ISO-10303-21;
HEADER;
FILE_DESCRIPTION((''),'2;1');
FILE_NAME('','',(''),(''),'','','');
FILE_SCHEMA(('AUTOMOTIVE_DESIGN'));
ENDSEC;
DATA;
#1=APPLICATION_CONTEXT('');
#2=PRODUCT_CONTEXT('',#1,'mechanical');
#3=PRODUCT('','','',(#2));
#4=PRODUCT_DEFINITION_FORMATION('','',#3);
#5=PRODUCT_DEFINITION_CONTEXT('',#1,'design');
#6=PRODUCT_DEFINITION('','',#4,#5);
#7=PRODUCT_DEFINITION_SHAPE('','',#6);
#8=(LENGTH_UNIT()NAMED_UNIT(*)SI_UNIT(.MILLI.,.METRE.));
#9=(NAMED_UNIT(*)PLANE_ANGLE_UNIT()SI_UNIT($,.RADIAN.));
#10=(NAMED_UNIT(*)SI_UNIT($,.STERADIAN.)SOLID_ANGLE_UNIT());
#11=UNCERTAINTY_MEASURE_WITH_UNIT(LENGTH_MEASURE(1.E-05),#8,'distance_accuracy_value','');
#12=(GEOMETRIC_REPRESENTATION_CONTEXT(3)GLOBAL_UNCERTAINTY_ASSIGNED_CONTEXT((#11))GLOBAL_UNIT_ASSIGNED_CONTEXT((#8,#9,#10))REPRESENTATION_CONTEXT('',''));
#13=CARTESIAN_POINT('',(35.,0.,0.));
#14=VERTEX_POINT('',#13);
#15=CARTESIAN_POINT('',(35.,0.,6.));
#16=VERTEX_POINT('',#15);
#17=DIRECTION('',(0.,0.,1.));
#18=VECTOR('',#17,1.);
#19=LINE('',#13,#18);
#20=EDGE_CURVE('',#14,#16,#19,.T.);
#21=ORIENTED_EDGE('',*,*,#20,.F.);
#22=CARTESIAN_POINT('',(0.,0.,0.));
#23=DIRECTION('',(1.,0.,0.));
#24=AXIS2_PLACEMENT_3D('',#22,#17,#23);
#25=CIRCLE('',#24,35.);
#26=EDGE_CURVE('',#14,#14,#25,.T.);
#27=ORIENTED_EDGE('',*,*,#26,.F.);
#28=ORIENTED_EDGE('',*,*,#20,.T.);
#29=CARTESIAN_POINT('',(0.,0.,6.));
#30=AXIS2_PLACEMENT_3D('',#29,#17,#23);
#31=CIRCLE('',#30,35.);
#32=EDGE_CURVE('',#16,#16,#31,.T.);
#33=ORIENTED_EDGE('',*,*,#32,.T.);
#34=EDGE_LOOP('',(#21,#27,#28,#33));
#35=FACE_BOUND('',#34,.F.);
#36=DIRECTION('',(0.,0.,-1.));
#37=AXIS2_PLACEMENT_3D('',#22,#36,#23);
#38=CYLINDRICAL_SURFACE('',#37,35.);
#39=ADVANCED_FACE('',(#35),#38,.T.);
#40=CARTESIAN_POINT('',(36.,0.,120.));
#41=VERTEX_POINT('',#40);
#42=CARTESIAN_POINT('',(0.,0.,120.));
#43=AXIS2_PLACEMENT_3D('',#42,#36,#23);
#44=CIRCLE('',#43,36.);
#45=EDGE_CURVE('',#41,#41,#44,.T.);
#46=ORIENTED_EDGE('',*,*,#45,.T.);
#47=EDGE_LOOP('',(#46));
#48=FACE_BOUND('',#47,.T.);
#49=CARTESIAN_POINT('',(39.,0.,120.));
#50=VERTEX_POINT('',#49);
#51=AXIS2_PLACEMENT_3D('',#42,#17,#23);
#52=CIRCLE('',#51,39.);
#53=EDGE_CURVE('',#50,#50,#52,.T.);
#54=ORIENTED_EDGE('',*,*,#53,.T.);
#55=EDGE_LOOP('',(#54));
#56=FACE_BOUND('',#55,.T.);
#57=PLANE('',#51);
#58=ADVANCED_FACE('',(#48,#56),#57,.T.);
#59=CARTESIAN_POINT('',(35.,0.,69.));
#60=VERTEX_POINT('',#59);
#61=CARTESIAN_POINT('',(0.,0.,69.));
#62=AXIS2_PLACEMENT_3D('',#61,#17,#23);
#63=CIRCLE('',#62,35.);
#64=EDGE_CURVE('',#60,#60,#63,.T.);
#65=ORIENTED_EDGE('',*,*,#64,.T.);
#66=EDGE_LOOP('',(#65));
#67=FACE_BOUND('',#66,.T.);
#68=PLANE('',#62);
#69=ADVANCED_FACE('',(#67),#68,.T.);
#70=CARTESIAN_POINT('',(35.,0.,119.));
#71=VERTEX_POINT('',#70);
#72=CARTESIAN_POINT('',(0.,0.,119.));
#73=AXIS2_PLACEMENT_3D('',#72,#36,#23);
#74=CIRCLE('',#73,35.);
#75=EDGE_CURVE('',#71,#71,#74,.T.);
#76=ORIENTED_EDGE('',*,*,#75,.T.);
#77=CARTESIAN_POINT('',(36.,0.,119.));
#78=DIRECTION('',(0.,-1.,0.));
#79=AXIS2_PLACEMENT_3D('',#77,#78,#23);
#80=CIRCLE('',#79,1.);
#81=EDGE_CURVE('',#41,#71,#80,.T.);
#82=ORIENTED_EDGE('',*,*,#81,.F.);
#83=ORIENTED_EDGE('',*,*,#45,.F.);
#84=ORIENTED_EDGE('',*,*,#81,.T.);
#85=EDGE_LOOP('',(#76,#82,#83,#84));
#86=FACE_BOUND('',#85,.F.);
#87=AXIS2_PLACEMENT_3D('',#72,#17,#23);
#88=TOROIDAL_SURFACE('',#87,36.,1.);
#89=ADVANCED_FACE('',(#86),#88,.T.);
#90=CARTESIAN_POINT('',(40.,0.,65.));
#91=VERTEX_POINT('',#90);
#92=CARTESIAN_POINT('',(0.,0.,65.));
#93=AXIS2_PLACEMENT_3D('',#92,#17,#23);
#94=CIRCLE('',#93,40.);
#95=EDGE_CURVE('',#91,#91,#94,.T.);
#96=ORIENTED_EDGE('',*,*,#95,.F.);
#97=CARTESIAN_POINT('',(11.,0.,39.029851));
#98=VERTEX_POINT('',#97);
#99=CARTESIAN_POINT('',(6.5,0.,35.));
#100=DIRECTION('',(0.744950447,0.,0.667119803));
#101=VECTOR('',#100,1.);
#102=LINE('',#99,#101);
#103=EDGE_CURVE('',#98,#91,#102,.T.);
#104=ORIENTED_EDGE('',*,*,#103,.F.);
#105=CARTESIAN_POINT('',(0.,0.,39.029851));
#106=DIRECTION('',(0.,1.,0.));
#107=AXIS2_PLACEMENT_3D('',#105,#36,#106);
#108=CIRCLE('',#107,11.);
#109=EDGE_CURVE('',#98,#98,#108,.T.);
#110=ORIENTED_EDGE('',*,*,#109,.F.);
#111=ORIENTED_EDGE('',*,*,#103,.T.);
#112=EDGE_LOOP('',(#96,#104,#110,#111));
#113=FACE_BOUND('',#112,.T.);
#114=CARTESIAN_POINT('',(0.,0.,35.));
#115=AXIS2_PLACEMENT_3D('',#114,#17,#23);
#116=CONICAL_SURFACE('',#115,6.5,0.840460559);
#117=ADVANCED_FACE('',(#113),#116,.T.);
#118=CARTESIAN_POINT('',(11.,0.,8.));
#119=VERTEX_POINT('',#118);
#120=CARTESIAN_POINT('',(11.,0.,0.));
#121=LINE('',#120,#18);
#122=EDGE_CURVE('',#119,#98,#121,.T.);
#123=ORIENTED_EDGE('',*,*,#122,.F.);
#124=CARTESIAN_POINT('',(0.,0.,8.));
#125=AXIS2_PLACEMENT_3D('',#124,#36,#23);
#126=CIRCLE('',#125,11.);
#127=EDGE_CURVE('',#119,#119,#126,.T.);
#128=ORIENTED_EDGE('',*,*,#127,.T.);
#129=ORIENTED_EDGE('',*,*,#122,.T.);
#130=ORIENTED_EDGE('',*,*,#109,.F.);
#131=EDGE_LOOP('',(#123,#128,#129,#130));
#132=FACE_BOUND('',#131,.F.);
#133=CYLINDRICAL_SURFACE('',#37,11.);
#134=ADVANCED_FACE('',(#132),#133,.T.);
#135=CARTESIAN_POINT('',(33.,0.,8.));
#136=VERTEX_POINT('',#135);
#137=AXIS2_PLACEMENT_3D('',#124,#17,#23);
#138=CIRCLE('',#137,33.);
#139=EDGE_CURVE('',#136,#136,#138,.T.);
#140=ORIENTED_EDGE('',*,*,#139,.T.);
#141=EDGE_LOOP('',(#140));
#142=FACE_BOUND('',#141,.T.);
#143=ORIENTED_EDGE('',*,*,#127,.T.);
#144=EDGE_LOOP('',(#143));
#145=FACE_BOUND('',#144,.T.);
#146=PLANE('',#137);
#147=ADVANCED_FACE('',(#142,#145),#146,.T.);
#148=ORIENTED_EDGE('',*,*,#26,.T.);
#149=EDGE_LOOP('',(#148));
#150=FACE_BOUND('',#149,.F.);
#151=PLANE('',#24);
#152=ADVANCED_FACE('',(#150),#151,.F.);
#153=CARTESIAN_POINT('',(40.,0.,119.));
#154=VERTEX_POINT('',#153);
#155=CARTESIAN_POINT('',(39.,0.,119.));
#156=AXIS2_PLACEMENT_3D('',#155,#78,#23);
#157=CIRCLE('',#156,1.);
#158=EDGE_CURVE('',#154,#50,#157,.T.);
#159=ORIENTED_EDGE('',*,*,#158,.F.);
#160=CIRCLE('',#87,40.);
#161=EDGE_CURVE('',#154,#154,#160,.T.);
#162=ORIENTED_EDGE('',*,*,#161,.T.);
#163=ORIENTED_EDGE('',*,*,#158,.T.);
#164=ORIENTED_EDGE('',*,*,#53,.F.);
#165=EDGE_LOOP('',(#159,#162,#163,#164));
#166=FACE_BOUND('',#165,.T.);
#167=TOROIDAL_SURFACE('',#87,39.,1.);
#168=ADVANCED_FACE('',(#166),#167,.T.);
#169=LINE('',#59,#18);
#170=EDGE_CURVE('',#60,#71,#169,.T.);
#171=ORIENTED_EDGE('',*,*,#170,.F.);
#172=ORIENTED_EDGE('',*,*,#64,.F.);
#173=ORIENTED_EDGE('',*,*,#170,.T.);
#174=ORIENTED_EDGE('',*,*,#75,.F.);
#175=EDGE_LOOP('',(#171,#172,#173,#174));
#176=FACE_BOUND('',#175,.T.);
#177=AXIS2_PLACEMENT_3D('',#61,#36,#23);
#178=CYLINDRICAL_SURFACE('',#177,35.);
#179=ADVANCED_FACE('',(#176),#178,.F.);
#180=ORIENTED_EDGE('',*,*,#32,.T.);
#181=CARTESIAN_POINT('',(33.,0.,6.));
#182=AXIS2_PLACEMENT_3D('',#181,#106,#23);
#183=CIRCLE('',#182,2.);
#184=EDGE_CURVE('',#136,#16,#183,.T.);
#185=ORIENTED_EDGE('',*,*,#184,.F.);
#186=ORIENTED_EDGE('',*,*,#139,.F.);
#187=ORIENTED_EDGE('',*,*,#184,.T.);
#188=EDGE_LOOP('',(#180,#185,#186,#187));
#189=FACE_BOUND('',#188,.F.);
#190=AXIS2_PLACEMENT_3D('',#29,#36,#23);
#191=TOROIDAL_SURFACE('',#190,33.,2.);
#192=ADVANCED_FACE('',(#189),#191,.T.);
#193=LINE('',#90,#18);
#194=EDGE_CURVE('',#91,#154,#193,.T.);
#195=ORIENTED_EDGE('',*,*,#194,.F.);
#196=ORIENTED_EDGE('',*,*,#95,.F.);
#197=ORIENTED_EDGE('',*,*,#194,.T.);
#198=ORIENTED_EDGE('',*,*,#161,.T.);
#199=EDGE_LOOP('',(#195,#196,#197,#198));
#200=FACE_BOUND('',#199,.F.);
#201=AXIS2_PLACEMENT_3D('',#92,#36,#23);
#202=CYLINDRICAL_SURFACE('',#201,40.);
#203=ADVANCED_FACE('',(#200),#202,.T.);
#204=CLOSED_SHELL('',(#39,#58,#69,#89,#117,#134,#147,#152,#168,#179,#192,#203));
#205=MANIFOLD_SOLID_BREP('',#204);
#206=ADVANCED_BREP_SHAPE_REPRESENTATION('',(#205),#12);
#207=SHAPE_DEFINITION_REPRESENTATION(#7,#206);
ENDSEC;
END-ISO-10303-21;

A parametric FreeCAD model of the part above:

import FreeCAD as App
import Part
import Sketcher

V = App.Vector
Q = App.Units.Quantity


def edges_at(feature, points):
    """Names of the edges that pass closest to the given points."""
    edges = feature.Shape.Edges
    near = lambda p: min(range(len(edges)), key=lambda i: edges[i].distToShape(Part.Vertex(*p))[0])
    return sorted({f"Edge{near(p) + 1}" for p in points})


def add_polygon(sketch, points):
    """Adds a closed chain of lines whose ends are joined by coincident constraints."""
    first, n = sketch.GeometryCount, len(points)
    for a, b in zip(points, points[1:] + points[:1]):
        sketch.addGeometry(Part.LineSegment(App.Vector(*a, 0), App.Vector(*b, 0)), False)
    for i in range(n):
        sketch.addConstraint(Sketcher.Constraint("Coincident", first + i, 2, first + (i + 1) % n, 1))

doc = App.newDocument("Part")
body = doc.addObject("PartDesign::Body", "Body")

sketch1 = body.newObject("Sketcher::SketchObject", "Sketch")
sketch1.AttachmentSupport = (doc.getObject("XZ_Plane"), [""])
sketch1.MapMode = "FlatFace"
add_polygon(sketch1, [(0, 35), (6, 35), (40, 65), (0, 65)])
sketch1.addConstraint([
    Sketcher.Constraint("Horizontal", 0),
    Sketcher.Constraint("Horizontal", 2),
    Sketcher.Constraint("Vertical", 3),
    Sketcher.Constraint("PointOnObject", 2, 2, -2),
    Sketcher.Constraint("DistanceX", 2, 2, 2, 1, Q("40 mm")),
    Sketcher.Constraint("DistanceY", 3, 2, 3, 1, Q("30 mm")),
    Sketcher.Constraint("DistanceX", 0, 1, 0, 2, Q("6.5 mm")),
    Sketcher.Constraint("DistanceY", -1, 1, 0, 2, Q("35 mm")),
])
revolution = body.newObject("PartDesign::Revolution", "Revolution")
revolution.Profile = sketch1
revolution.ReferenceAxis = (sketch1, ["V_Axis"])
revolution.Angle = 360
body2 = doc.addObject("PartDesign::Body", "Body001")

sketch2 = body2.newObject("Sketcher::SketchObject", "Sketch001")
sketch2.AttachmentSupport = (doc.getObject("XY_Plane001"), [""])
sketch2.MapMode = "FlatFace"
sketch2.AttachmentOffset = App.Placement(V(0, 0, 69), App.Rotation())
sketch2.addGeometry(Part.Circle(V(0, 0, 0), V(0, 0, 1), 35), False)
sketch2.addConstraint([
    Sketcher.Constraint("Coincident", 0, 3, -1, 1),
    Sketcher.Constraint("Diameter", 0, Q("70 mm")),
])
pad1 = body2.newObject("PartDesign::Pad", "Pad")
pad1.Profile = sketch2
pad1.Length = 55
body3 = doc.addObject("PartDesign::Body", "Body002")

sketch3 = body3.newObject("Sketcher::SketchObject", "Sketch002")
sketch3.AttachmentSupport = (doc.getObject("XY_Plane002"), [""])
sketch3.MapMode = "FlatFace"
sketch3.AttachmentOffset = App.Placement(V(0, 0, 65), App.Rotation())
sketch3.addGeometry(Part.Circle(V(0, 0, 0), V(0, 0, 1), 40), False)
sketch3.addConstraint([
    Sketcher.Constraint("Coincident", 0, 3, -1, 1),
    Sketcher.Constraint("Diameter", 0, Q("80 mm")),
])
pad2 = body3.newObject("PartDesign::Pad", "Pad001")
pad2.Profile = sketch3
pad2.Length = 55
doc.recompute()

boolean = body3.newObject("PartDesign::Boolean", "Boolean")
boolean.Type = "Cut"
boolean.addObjects([body2])
body4 = doc.addObject("PartDesign::Body", "Body003")

sketch4 = body4.newObject("Sketcher::SketchObject", "Sketch003")
sketch4.AttachmentSupport = (doc.getObject("XY_Plane003"), [""])
sketch4.MapMode = "FlatFace"
sketch4.addGeometry(Part.Circle(V(0, 0, 0), V(0, 0, 1), 35), False)
sketch4.addConstraint([
    Sketcher.Constraint("Coincident", 0, 3, -1, 1),
    Sketcher.Constraint("Diameter", 0, Q("70 mm")),
])
pad3 = body4.newObject("PartDesign::Pad", "Pad002")
pad3.Profile = sketch4
pad3.Length = 8
body5 = doc.addObject("PartDesign::Body", "Body004")

sketch5 = body5.newObject("Sketcher::SketchObject", "Sketch004")
sketch5.AttachmentSupport = (doc.getObject("XY_Plane004"), [""])
sketch5.MapMode = "FlatFace"
sketch5.addGeometry(Part.Circle(V(0, 0, 0), V(0, 0, 1), 11), False)
sketch5.addConstraint([
    Sketcher.Constraint("Coincident", 0, 3, -1, 1),
    Sketcher.Constraint("Diameter", 0, Q("22 mm")),
])
pad4 = body5.newObject("PartDesign::Pad", "Pad003")
pad4.Profile = sketch5
pad4.Length = 65
doc.recompute()

boolean2 = body5.newObject("PartDesign::Boolean", "Boolean001")
boolean2.Type = "Fuse"
boolean2.addObjects([body4])
doc.recompute()

boolean3 = body5.newObject("PartDesign::Boolean", "Boolean002")
boolean3.Type = "Fuse"
boolean3.addObjects([body3])
doc.recompute()

boolean4 = body5.newObject("PartDesign::Boolean", "Boolean003")
boolean4.Type = "Fuse"
boolean4.addObjects([body])
doc.recompute()

fillet = body5.newObject("PartDesign::Fillet", "Fillet")
fillet.Base = (boolean4, edges_at(boolean4, [(-35, 0, 8)]))
fillet.Radius = 2
doc.recompute()

fillet2 = body5.newObject("PartDesign::Fillet", "Fillet001")
fillet2.Base = (fillet, edges_at(fillet, [(-40, 0, 120)]))
fillet2.Radius = 1
doc.recompute()

fillet3 = body5.newObject("PartDesign::Fillet", "Fillet002")
fillet3.Base = (fillet2, edges_at(fillet2, [(-35, 0, 120)]))
fillet3.Radius = 1

doc.recompute()
